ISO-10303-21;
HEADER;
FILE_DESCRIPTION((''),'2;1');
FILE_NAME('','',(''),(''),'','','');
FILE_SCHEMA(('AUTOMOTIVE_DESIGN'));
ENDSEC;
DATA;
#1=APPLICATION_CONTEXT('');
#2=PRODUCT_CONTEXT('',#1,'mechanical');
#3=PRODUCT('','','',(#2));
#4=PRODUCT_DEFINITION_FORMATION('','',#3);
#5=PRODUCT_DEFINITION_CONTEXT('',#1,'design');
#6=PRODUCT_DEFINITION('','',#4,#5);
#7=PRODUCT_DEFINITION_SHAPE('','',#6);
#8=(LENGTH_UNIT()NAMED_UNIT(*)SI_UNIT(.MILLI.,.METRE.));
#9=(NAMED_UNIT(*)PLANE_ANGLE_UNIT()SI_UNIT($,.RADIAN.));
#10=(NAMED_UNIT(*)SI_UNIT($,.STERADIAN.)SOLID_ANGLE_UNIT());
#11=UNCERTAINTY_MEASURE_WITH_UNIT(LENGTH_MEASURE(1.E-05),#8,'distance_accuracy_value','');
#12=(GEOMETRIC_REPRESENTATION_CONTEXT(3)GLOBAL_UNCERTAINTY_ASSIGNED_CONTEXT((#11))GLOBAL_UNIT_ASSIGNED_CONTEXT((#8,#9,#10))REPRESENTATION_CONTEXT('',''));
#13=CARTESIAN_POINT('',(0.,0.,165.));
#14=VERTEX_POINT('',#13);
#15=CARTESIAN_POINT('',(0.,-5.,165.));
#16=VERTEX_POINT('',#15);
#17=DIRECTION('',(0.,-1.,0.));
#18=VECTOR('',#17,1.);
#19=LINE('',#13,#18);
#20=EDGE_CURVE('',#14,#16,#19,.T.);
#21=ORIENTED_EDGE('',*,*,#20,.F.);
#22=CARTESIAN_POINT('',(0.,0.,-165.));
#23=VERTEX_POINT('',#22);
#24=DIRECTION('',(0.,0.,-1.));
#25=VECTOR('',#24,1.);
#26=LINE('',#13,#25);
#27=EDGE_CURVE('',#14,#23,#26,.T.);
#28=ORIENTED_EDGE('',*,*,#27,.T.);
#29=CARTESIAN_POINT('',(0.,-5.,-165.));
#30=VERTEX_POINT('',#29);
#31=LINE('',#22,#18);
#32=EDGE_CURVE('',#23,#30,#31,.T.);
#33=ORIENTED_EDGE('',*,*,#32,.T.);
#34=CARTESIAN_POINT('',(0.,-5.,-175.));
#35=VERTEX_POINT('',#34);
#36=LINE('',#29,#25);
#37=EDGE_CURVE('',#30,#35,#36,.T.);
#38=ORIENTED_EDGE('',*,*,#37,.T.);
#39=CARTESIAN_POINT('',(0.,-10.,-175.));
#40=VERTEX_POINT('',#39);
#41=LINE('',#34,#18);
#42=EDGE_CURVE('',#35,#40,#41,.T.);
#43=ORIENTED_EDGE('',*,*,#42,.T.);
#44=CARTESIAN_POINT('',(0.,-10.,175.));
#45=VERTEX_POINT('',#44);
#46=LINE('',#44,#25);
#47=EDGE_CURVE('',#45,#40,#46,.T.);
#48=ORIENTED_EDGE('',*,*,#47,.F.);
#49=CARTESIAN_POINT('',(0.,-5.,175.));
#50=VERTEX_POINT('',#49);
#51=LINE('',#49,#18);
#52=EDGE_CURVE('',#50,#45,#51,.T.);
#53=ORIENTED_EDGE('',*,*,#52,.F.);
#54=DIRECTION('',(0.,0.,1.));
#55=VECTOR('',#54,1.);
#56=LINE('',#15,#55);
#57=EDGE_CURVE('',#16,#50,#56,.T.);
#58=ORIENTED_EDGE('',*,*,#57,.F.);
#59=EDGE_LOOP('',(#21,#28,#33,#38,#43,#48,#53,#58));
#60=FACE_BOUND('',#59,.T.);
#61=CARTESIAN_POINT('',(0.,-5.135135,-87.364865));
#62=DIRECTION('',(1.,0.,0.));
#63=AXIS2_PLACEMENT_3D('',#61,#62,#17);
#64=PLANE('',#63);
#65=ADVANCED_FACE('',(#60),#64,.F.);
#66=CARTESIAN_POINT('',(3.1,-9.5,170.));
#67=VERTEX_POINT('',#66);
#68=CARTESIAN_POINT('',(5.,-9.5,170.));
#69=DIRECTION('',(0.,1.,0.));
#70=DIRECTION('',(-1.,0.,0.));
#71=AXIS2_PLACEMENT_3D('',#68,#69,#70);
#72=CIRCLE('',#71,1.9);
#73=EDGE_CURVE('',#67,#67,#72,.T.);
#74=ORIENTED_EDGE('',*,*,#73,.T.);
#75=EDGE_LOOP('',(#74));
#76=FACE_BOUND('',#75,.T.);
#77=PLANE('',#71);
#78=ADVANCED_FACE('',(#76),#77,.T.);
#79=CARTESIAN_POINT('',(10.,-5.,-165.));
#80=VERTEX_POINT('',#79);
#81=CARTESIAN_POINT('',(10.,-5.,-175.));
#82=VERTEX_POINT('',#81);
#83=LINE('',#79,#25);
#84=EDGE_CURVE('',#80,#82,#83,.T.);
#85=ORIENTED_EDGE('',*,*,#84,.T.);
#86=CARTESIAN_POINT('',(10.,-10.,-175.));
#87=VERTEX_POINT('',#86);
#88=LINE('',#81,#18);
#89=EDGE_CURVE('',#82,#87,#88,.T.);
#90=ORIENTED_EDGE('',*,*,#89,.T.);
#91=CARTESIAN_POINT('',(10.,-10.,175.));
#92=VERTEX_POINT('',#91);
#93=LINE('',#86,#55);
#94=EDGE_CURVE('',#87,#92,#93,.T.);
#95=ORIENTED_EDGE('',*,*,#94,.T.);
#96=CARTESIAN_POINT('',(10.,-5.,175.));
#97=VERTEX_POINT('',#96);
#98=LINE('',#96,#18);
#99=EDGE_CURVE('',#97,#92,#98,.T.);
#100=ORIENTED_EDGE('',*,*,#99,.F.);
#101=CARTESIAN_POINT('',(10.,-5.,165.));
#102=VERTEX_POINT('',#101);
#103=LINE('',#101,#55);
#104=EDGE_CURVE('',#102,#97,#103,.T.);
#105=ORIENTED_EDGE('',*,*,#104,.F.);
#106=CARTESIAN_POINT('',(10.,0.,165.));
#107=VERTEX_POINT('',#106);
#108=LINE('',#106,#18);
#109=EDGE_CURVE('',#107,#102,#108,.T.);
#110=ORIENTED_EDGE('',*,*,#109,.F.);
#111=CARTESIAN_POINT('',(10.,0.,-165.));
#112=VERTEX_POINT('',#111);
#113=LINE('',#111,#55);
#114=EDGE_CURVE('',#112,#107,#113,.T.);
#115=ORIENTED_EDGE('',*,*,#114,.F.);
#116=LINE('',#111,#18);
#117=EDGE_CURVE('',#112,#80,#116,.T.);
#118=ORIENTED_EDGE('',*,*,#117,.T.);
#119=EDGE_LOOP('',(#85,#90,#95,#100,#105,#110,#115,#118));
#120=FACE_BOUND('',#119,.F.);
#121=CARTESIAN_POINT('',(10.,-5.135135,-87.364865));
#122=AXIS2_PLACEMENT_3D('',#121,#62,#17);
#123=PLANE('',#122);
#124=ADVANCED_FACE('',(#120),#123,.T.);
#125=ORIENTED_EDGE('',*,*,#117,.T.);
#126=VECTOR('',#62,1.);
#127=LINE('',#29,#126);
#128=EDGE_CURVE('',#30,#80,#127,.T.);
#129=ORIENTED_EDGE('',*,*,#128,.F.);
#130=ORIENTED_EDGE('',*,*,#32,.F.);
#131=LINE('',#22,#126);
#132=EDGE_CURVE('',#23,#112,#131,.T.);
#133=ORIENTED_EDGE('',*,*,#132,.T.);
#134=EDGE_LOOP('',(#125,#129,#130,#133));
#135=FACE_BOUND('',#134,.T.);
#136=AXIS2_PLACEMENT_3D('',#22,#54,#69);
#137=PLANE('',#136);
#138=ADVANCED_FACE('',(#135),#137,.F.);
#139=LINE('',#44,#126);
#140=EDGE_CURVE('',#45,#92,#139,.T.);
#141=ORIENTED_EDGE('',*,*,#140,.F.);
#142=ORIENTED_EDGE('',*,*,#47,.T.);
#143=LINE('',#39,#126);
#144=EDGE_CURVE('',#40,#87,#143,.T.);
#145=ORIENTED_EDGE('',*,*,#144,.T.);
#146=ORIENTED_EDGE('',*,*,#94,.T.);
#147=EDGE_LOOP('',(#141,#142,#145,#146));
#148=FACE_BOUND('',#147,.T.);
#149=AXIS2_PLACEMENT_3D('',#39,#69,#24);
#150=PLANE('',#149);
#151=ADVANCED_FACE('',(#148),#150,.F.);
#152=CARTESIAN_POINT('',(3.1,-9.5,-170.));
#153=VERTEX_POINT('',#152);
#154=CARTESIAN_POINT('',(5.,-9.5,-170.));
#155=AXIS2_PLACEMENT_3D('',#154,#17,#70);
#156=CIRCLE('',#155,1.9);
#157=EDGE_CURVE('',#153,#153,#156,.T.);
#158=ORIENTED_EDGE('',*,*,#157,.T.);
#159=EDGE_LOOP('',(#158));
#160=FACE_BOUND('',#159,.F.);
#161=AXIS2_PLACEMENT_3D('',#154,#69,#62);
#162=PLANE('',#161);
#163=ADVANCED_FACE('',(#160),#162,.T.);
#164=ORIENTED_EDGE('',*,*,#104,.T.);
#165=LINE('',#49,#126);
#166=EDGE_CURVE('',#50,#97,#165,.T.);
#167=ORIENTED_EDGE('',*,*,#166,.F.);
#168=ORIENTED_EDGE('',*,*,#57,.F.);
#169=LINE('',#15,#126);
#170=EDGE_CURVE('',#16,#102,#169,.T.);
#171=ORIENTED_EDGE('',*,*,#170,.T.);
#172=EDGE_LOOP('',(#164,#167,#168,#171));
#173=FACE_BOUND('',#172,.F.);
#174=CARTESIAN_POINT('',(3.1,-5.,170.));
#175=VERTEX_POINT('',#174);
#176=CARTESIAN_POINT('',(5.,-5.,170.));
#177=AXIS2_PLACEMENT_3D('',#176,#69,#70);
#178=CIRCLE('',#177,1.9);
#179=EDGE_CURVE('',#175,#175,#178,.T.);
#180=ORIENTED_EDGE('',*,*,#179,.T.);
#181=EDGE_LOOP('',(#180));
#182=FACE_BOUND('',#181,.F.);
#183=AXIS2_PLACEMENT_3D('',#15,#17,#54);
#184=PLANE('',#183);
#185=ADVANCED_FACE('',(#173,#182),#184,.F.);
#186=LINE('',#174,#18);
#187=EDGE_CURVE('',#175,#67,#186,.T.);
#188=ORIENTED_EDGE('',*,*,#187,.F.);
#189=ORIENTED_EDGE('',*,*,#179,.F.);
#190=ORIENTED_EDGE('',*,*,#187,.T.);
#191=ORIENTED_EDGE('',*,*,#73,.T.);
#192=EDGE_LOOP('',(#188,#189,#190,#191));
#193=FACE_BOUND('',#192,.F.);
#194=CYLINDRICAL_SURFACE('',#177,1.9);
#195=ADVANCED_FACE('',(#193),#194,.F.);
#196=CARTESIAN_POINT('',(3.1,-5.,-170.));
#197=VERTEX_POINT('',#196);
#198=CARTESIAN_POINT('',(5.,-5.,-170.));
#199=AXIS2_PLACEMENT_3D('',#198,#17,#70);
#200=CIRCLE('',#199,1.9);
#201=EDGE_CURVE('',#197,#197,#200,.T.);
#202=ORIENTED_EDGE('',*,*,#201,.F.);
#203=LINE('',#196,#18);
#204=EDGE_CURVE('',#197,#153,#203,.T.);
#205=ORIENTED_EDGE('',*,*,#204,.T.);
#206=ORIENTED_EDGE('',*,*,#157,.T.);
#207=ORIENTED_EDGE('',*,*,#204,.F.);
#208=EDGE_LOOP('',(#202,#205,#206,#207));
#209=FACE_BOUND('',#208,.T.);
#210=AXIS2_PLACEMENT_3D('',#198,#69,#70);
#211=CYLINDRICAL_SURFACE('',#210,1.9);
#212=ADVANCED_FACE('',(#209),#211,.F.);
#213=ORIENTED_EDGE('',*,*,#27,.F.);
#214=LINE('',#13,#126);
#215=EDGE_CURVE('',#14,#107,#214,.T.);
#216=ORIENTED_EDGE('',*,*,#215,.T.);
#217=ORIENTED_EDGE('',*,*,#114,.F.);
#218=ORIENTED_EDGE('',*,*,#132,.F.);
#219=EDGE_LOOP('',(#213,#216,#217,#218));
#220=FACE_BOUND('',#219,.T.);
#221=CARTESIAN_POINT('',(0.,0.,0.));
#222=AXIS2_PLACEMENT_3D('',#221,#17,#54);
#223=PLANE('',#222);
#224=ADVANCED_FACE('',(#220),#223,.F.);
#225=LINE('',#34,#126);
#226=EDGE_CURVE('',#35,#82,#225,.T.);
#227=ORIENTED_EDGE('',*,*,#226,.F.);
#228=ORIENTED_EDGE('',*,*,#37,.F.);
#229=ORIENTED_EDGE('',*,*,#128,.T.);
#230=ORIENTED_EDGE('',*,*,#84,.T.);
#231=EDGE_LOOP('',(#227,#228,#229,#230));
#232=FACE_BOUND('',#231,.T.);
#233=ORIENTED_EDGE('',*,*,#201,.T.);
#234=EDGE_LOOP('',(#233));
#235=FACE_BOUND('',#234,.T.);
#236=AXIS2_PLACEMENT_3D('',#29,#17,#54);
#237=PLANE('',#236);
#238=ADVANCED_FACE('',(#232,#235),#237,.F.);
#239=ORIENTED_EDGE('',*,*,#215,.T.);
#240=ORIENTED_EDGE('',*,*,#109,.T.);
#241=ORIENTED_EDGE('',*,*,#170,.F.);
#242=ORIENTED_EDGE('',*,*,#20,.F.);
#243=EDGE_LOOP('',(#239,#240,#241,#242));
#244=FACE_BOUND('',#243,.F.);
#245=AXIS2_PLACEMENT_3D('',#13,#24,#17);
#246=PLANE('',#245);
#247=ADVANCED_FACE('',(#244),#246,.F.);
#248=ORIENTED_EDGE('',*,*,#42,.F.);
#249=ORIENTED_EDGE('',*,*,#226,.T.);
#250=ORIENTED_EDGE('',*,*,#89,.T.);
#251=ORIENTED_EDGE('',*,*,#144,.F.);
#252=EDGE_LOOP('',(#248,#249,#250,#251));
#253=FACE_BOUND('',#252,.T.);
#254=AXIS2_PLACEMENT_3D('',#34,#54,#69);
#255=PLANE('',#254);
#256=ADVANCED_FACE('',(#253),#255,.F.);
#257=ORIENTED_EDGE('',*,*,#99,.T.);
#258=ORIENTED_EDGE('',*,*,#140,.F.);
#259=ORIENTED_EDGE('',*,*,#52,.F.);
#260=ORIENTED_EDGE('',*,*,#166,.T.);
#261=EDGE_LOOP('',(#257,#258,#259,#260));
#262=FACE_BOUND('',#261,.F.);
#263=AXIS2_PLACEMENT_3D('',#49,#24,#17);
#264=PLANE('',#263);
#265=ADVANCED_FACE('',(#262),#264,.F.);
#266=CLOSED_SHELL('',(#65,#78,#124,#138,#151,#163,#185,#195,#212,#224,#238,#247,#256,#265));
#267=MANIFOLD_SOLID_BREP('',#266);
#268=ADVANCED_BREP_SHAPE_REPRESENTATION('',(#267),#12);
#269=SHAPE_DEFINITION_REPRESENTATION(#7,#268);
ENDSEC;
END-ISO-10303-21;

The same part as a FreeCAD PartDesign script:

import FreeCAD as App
import Part
import Sketcher
from FreeCAD import Vector
Q = App.Units.Quantity


def add_polygon(sketch, points):
    """Adds a closed chain of lines whose ends are joined by coincident constraints."""
    first, n = sketch.GeometryCount, len(points)
    for a, b in zip(points, points[1:] + points[:1]):
        sketch.addGeometry(Part.LineSegment(App.Vector(*a, 0), App.Vector(*b, 0)), False)
    for i in range(n):
        sketch.addConstraint(Sketcher.Constraint("Coincident", first + i, 2, first + (i + 1) % n, 1))

doc = App.newDocument("Part")
body = doc.addObject("PartDesign::Body", "Body")

# Sketch on YZ plane
sketch1 = body.newObject("Sketcher::SketchObject", "Sketch")
sketch1.AttachmentSupport = (doc.getObject("YZ_Plane"), [""])
sketch1.MapMode = "FlatFace"
add_polygon(sketch1, [(-10, 0), (0, 0), (0, 165), (-5, 165), (-5, 175), (-10, 175)])  # lines 0-5
sketch1.addConstraint([
    Sketcher.Constraint("Horizontal", 0),
    Sketcher.Constraint("Vertical", 1),
    Sketcher.Constraint("Horizontal", 2),
    Sketcher.Constraint("Vertical", 3),
    Sketcher.Constraint("Horizontal", 4),
    Sketcher.Constraint("Vertical", 5),
    Sketcher.Constraint("Coincident", 0, 2, -1, 1),
    Sketcher.Constraint("Equal", 2, 4),
    Sketcher.Constraint("Equal", 0, 3),
    Sketcher.Constraint("DistanceX", 0, 1, 0, 2, Q("10 mm")),
    Sketcher.Constraint("DistanceY", 1, 1, 1, 2, Q("165 mm")),
])
pad1 = body.newObject("PartDesign::Pad", "Pad")
pad1.Profile = sketch1
pad1.Length = 10

# Sketch on XZ plane
sketch2 = body.newObject("Sketcher::SketchObject", "Sketch001")
sketch2.AttachmentSupport = (doc.getObject("XZ_Plane"), [""])
sketch2.MapMode = "FlatFace"
sketch2.AttachmentOffset = App.Placement(Vector(0, 0, 5), App.Rotation())
sketch2.addGeometry(Part.Circle(Vector(5, 170, 0), Vector(0, 0, 1), 1.9), False)
sketch2.addConstraint([
    Sketcher.Constraint("Diameter", 0, Q("3.8 mm")),
    Sketcher.Constraint("DistanceX", -1, 1, 0, 3, Q("5 mm")),
    Sketcher.Constraint("DistanceY", -1, 1, 0, 3, Q("170 mm")),
])
pocket1 = body.newObject("PartDesign::Pocket", "Pocket")
pocket1.Profile = sketch2
pocket1.Length = 4.5
pocket1.Reversed = True
body2 = doc.addObject("PartDesign::Body", "Body001")
doc.recompute()

body2.BaseFeature = body
doc.recompute()

mirroring = doc.addObject("Part::Mirroring", "Mirroring")
mirroring.Source = body
mirroring.Base = Vector(0, 0, 0)
mirroring.Normal = Vector(0, 0, 1)
body3 = doc.addObject("PartDesign::Body", "Body002")
body3.BaseFeature = mirroring
boolean = body2.newObject("PartDesign::Boolean", "Boolean")
boolean.Type = "Fuse"
boolean.addObjects([body3])
doc.recompute()
mirroring.Visibility = False

doc.recompute()
